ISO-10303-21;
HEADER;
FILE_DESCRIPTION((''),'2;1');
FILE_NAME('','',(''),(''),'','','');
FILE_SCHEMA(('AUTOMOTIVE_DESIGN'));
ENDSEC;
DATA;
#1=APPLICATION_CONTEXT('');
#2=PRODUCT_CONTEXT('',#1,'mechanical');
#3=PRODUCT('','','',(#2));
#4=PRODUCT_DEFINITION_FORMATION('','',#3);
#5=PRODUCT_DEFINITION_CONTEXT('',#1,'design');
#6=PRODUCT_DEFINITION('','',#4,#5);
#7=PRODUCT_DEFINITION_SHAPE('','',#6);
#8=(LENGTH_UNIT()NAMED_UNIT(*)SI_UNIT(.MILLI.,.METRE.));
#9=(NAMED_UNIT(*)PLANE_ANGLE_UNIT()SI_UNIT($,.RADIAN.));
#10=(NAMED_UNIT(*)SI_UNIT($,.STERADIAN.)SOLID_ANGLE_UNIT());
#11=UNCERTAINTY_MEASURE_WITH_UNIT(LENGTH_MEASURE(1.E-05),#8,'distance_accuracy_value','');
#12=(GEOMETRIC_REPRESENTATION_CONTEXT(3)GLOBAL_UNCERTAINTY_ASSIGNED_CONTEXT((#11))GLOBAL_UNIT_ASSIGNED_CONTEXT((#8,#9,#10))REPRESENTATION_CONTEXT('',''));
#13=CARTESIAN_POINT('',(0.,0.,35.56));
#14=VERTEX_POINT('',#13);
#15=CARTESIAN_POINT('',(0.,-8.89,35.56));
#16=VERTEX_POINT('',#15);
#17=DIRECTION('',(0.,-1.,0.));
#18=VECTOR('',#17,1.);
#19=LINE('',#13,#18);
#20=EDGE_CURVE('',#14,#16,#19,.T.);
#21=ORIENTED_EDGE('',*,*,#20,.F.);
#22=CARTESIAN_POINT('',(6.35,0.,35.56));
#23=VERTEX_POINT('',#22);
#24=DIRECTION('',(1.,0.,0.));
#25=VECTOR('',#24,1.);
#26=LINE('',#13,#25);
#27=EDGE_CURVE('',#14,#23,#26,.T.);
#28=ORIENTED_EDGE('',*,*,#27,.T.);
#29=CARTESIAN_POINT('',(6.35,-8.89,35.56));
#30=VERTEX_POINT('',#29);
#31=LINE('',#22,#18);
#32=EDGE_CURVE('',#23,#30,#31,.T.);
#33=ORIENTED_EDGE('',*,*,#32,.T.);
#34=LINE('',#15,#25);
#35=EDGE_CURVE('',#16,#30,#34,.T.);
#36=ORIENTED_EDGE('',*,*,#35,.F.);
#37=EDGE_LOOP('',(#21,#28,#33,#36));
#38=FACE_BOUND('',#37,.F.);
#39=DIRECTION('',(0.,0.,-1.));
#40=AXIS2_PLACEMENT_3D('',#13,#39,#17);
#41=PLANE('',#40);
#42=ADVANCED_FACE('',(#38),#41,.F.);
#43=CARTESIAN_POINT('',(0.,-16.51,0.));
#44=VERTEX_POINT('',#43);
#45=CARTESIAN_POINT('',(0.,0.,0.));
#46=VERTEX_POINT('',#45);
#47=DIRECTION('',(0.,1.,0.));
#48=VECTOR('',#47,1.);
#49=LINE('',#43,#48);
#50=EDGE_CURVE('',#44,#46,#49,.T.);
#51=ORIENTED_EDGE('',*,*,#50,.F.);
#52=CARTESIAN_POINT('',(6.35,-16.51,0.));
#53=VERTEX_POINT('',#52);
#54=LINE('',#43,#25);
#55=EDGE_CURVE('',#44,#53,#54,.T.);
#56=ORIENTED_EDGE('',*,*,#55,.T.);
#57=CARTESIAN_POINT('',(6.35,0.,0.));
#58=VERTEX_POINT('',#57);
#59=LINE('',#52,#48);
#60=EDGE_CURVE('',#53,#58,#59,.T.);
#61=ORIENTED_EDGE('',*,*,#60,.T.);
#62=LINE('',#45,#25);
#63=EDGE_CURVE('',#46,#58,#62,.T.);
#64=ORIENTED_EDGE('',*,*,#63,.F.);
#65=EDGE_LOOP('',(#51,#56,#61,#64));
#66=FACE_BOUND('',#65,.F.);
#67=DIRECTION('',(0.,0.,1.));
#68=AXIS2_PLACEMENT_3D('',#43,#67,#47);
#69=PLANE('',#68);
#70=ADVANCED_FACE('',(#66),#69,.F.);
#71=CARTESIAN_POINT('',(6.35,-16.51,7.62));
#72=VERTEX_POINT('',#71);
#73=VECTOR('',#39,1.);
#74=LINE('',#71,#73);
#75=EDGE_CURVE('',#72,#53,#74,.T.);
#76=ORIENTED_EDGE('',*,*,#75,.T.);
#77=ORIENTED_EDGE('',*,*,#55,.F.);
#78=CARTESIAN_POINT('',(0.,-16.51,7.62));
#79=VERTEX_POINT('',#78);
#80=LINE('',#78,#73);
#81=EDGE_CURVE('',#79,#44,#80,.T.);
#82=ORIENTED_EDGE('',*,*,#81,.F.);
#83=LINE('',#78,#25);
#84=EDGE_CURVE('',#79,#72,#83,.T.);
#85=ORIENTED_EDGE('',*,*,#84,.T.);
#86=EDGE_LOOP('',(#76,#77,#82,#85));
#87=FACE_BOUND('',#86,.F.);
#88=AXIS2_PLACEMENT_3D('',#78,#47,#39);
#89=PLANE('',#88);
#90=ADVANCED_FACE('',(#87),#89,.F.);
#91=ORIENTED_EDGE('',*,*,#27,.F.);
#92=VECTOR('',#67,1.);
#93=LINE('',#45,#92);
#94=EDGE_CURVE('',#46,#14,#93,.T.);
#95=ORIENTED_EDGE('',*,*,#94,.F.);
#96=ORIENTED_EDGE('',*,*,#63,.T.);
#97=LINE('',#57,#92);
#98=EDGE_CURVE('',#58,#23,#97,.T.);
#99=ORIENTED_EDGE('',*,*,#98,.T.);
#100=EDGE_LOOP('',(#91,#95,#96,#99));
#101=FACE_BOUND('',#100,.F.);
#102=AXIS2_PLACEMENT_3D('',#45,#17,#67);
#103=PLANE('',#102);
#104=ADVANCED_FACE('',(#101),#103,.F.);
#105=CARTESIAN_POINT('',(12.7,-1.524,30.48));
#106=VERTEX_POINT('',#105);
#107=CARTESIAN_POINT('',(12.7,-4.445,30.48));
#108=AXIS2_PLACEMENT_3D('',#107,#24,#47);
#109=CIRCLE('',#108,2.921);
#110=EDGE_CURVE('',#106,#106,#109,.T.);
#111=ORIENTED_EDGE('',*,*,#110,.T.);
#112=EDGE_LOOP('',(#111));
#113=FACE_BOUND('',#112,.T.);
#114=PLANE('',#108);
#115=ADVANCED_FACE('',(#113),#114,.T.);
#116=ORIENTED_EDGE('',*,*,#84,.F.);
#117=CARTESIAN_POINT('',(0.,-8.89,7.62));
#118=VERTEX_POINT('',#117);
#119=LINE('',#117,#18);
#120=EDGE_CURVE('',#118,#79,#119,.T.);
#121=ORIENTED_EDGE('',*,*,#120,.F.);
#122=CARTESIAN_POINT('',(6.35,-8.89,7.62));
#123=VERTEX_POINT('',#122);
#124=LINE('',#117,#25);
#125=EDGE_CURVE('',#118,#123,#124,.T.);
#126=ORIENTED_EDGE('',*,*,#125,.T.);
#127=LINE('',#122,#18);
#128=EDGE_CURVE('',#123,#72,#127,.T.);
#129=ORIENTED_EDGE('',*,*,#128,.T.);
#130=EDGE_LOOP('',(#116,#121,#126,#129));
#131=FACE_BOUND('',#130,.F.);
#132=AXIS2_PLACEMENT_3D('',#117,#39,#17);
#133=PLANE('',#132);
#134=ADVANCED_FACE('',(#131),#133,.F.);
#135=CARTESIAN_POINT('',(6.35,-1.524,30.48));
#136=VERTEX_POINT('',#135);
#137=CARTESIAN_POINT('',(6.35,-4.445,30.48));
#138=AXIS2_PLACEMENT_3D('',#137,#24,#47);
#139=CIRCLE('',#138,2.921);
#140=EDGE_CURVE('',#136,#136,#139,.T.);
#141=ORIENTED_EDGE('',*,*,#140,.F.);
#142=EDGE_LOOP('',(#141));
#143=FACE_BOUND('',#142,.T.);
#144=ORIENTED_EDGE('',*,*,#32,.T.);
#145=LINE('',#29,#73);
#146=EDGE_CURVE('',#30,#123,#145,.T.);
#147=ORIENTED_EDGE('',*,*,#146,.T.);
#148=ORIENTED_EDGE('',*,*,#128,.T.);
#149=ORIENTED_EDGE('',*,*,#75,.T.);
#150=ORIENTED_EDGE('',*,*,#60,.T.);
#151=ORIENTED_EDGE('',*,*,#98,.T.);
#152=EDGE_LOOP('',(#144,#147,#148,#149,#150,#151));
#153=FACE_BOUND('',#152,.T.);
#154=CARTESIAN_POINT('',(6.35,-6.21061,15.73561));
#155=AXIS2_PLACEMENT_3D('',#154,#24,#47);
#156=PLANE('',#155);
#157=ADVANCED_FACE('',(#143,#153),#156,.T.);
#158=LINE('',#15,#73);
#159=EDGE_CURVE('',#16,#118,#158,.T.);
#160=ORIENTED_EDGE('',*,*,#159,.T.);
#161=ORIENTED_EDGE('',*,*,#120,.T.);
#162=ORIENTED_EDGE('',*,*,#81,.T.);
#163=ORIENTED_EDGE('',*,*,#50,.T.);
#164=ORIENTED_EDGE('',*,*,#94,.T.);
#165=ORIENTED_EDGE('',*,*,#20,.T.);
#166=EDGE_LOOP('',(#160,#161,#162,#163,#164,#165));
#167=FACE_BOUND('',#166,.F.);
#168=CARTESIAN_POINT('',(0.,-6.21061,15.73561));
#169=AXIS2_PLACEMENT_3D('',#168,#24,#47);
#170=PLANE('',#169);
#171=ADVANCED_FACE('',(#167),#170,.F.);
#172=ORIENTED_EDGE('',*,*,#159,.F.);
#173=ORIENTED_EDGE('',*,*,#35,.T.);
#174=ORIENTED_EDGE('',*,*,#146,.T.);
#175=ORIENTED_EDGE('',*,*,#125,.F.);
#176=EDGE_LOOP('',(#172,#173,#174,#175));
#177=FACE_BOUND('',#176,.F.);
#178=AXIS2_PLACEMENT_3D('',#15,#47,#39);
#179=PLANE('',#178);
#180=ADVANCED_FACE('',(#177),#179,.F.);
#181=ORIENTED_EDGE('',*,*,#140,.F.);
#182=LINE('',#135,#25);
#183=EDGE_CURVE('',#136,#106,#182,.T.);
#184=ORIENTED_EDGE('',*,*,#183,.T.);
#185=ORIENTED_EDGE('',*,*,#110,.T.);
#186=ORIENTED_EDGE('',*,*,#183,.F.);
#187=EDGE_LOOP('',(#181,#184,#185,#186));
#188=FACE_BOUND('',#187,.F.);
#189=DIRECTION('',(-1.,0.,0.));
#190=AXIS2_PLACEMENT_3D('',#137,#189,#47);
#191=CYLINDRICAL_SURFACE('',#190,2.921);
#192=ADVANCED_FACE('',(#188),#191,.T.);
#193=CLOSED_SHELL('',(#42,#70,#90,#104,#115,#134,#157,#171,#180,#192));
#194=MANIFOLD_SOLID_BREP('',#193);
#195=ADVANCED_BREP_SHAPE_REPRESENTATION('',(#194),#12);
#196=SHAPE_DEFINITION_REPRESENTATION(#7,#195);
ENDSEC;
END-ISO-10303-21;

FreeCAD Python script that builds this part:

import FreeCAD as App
import Part
import Sketcher

V = App.Vector
Q = App.Units.Quantity


def add_polygon(sketch, points):
    """Adds a closed chain of lines whose ends are joined by coincident constraints."""
    first, n = sketch.GeometryCount, len(points)
    for a, b in zip(points, points[1:] + points[:1]):
        sketch.addGeometry(Part.LineSegment(App.Vector(*a, 0), App.Vector(*b, 0)), False)
    for i in range(n):
        sketch.addConstraint(Sketcher.Constraint("Coincident", first + i, 2, first + (i + 1) % n, 1))

doc = App.newDocument("Part")
body = doc.addObject("PartDesign::Body", "Body")

sketch1 = body.newObject("Sketcher::SketchObject", "Sketch")
sketch1.AttachmentSupport = (doc.getObject("YZ_Plane"), [""])
sketch1.MapMode = "FlatFace"
add_polygon(sketch1, [(-17, 0), (0, 0), (0, 36), (-9, 36), (-9, 8), (-17, 8)])
sketch1.addConstraint([
    Sketcher.Constraint("Horizontal", 0),
    Sketcher.Constraint("Vertical", 1),
    Sketcher.Constraint("Horizontal", 2),
    Sketcher.Constraint("Vertical", 3),
    Sketcher.Constraint("Horizontal", 4),
    Sketcher.Constraint("Vertical", 5),
    Sketcher.Constraint("Coincident", 0, 2, -1, 1),
    Sketcher.Constraint("Equal", 4, 5),
    Sketcher.Constraint("DistanceX", 4, 2, 4, 1, Q("0.3 in")),
    Sketcher.Constraint("DistanceY", 1, 1, 1, 2, Q("1.4 in")),
    Sketcher.Constraint("DistanceX", 0, 1, 0, 2, Q("0.65 in")),
])
pad1 = body.newObject("PartDesign::Pad", "Pad")
pad1.Profile = sketch1
pad1.Length = Q("0.25 in")

sketch2 = body.newObject("Sketcher::SketchObject", "Sketch001")
sketch2.AttachmentSupport = (doc.getObject("YZ_Plane"), [""])
sketch2.MapMode = "FlatFace"
sketch2.AttachmentOffset = App.Placement(V(0, 0, 0.25 * 25.4), App.Rotation())
sketch2.addGeometry(Part.Circle(V(-4.4, 30.5, 0), V(0, 0, 1), 2.9), False)
sketch2.addConstraint([
    Sketcher.Constraint("Diameter", 0, Q("0.23 in")),
    Sketcher.Constraint("DistanceY", -1, 1, 0, 3, Q("1.2 in")),
    Sketcher.Constraint("DistanceX", 0, 3, -1, 1, Q("0.175 in")),
])
pad2 = body.newObject("PartDesign::Pad", "Pad001")
pad2.Profile = sketch2
pad2.Length = Q("0.25 in")

doc.recompute()
